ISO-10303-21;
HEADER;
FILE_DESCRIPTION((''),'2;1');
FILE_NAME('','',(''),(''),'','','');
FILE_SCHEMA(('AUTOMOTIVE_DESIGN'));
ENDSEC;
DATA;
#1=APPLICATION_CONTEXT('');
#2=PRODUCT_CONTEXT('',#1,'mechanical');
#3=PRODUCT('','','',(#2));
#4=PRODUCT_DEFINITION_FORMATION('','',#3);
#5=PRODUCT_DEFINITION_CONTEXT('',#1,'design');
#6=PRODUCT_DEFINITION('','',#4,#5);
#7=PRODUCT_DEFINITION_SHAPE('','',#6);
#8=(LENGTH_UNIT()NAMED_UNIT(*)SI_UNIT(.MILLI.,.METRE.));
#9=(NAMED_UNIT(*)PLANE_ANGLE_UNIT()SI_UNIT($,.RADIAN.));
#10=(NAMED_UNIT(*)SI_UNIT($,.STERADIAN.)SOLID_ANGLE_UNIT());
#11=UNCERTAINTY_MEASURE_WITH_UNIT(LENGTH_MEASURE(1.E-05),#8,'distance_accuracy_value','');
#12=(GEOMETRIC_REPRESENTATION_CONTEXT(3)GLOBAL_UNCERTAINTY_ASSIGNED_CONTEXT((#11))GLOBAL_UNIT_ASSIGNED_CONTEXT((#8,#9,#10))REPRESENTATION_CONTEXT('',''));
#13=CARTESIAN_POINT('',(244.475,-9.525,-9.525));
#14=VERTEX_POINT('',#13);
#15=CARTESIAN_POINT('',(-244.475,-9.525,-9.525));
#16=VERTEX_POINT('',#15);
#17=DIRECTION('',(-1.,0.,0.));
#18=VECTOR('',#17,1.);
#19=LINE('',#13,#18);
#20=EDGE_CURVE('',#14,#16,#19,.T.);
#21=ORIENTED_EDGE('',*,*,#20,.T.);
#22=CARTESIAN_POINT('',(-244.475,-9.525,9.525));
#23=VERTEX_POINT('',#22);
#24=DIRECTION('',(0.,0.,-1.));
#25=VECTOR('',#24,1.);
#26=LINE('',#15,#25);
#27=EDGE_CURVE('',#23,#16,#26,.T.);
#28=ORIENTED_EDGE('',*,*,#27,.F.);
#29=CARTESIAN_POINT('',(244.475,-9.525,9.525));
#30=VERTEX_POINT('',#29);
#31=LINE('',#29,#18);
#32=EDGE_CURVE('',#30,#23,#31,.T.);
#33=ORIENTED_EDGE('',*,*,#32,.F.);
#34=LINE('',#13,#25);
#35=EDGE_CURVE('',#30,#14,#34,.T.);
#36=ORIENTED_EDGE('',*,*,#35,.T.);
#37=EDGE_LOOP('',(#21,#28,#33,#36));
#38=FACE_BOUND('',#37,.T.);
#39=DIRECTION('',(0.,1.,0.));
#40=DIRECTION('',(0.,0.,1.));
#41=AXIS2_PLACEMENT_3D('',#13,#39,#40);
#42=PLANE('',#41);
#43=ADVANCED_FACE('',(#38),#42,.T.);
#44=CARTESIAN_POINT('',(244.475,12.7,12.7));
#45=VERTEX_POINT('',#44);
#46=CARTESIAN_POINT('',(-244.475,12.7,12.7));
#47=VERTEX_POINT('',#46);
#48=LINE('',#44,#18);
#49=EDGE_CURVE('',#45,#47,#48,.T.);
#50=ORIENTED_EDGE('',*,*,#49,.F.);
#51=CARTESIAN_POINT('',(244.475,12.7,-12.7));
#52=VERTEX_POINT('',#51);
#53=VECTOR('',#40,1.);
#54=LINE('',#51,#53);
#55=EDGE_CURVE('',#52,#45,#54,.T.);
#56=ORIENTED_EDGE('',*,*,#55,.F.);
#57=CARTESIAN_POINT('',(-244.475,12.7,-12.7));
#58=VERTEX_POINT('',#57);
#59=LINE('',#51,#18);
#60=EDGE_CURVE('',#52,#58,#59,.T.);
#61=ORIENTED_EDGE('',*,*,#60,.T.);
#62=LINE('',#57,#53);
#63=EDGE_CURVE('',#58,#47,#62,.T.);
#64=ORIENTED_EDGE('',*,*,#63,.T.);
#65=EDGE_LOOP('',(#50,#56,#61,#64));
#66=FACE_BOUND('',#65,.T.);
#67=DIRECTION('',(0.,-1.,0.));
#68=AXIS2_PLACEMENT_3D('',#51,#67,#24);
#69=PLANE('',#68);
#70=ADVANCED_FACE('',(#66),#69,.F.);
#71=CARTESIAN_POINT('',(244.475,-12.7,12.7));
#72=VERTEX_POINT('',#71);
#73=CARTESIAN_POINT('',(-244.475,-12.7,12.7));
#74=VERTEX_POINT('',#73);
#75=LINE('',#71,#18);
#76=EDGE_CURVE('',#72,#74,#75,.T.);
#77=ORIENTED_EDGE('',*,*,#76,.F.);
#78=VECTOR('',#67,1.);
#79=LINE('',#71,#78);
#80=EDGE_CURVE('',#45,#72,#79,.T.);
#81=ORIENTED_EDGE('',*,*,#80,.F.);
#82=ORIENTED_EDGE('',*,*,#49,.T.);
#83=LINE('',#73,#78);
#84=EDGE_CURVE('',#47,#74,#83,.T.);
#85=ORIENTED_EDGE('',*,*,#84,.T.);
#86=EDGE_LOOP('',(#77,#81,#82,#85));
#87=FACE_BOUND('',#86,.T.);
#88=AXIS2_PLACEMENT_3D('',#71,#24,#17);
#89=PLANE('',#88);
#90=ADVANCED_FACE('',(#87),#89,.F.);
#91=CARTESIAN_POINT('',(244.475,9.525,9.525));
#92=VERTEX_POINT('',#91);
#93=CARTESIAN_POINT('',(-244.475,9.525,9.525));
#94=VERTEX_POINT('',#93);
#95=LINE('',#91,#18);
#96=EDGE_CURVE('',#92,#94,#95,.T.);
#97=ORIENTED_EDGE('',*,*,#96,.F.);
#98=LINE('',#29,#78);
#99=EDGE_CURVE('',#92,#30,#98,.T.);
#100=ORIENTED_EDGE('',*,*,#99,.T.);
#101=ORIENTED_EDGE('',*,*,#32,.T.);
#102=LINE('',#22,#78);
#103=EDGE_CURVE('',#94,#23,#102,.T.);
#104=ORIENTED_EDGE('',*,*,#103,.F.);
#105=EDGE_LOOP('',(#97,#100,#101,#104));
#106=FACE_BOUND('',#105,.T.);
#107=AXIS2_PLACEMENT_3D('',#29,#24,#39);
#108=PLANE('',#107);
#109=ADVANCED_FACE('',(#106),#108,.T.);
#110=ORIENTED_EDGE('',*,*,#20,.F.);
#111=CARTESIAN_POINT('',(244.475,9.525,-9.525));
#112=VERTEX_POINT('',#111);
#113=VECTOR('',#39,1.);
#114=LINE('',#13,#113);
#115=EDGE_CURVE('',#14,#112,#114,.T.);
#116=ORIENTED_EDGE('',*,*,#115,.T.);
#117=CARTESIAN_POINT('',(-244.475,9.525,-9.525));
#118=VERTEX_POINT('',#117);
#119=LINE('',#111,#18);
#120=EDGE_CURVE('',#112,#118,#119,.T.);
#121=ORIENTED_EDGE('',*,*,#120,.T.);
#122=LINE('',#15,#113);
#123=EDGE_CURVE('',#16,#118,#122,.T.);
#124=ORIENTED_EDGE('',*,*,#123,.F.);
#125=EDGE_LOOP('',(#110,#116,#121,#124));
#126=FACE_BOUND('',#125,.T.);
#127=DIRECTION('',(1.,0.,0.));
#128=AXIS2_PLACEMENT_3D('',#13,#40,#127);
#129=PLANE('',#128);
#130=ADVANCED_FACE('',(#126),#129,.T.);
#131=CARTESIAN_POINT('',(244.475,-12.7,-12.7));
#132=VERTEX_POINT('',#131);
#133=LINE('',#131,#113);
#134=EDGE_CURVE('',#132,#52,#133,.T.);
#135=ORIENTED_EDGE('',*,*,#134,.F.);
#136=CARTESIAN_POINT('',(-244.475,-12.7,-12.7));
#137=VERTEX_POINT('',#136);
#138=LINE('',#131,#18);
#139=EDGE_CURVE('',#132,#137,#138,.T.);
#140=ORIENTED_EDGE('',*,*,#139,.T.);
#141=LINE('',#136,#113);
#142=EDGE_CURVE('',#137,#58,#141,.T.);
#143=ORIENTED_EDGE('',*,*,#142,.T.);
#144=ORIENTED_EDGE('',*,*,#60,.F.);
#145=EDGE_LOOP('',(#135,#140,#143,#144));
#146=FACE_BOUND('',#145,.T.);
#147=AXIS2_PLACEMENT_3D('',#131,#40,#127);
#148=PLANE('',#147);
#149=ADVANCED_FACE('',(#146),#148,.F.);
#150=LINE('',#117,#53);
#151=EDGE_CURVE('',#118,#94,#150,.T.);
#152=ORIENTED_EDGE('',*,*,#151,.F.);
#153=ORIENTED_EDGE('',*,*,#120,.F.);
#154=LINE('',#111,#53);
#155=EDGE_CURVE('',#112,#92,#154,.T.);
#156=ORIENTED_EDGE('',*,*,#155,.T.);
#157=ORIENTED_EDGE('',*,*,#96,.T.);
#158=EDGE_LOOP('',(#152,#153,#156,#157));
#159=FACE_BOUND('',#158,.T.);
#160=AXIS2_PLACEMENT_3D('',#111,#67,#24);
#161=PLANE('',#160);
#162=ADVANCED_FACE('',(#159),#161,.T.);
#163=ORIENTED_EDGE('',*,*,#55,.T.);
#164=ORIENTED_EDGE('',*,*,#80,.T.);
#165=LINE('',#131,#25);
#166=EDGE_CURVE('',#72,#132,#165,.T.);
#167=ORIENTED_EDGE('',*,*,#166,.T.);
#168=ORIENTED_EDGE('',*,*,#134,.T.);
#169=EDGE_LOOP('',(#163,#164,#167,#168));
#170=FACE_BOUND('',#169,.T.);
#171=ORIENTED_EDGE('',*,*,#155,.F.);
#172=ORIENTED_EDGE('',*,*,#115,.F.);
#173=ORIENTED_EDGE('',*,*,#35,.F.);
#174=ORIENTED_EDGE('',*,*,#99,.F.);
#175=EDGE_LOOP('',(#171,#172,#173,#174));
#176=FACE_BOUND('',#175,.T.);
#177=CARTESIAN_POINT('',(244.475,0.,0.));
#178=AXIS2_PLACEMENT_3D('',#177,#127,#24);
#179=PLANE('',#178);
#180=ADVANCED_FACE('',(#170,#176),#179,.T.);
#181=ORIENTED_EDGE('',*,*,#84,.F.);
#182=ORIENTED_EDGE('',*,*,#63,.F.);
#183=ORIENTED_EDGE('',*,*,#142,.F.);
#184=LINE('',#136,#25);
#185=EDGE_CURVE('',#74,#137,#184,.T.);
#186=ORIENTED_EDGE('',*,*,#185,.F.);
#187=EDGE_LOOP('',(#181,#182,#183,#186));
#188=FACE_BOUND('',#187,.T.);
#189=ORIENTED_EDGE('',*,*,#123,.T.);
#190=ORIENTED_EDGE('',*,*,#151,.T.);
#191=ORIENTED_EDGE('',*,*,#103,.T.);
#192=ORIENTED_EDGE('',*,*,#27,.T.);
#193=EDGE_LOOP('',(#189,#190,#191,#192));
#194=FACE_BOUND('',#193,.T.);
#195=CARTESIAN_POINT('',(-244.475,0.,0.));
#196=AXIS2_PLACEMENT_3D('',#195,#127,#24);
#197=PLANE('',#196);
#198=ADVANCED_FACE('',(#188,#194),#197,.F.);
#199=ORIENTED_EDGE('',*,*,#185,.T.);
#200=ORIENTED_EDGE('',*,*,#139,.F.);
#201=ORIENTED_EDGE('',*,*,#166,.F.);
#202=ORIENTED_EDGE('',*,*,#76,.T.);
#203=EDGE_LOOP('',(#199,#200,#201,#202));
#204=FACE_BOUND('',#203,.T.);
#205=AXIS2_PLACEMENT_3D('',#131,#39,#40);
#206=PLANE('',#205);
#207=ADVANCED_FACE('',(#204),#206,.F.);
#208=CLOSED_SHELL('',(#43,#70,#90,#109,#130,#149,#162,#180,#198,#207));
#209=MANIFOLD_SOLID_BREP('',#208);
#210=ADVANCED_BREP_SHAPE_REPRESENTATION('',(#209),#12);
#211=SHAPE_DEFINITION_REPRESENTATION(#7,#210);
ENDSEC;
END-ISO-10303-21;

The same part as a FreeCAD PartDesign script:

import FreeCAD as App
import Part
import Sketcher
from FreeCAD import Vector
Q = App.Units.Quantity


def add_polygon(sketch, points):
    """Adds a closed chain of lines whose ends are joined by coincident constraints."""
    first, n = sketch.GeometryCount, len(points)
    for a, b in zip(points, points[1:] + points[:1]):
        sketch.addGeometry(Part.LineSegment(App.Vector(*a, 0), App.Vector(*b, 0)), False)
    for i in range(n):
        sketch.addConstraint(Sketcher.Constraint("Coincident", first + i, 2, first + (i + 1) % n, 1))

doc = App.newDocument("Part")
params = doc.addObject("Spreadsheet::Sheet", "Params")
for row, (alias, value) in enumerate([
    ("sketch1_width", "1 in"),
    ("sketch1_width2", "0.75 in"),
    ("pad1_length", "19.25 in"),
], start=1):
    params.set(f"A{row}", alias)
    params.set(f"B{row}", "=" + value)
    params.setAlias(f"B{row}", alias)

body = doc.addObject("PartDesign::Body", "Body")

sketch1 = doc.addObject("Sketcher::SketchObject", "Sketch")
body.addObject(sketch1)
sketch1.AttachmentSupport = (doc.YZ_Plane, [""])
sketch1.MapMode = "FlatFace"
add_polygon(sketch1, [(13, 13), (-13, 13), (-13, -13), (13, -13)])
add_polygon(sketch1, [(-10, -10), (-10, 10), (10, 10), (10, -10)])
sketch1.addConstraint(Sketcher.Constraint("Horizontal", 0))
sketch1.addConstraint(Sketcher.Constraint("Vertical", 1))
sketch1.addConstraint(Sketcher.Constraint("Horizontal", 2))
sketch1.addConstraint(Sketcher.Constraint("Vertical", 3))
sketch1.addConstraint(Sketcher.Constraint("Vertical", 4))
sketch1.addConstraint(Sketcher.Constraint("Horizontal", 5))
sketch1.addConstraint(Sketcher.Constraint("Vertical", 6))
sketch1.addConstraint(Sketcher.Constraint("Horizontal", 7))
sketch1.addConstraint(Sketcher.Constraint("Symmetric", 0, 2, 2, 2, -1, 1))
sketch1.addConstraint(Sketcher.Constraint("Symmetric", 4, 2, 6, 2, -1, 1))
sketch1.addConstraint(Sketcher.Constraint("Equal", 2, 1))
sketch1.addConstraint(Sketcher.Constraint("Equal", 7, 4))
sketch1.addConstraint(Sketcher.Constraint("DistanceX", 0, 2, 0, 1, Q("1 in")))
sketch1.addConstraint(Sketcher.Constraint("DistanceX", 5, 1, 5, 2, Q("0.75 in")))
sketch1.setExpression("Constraints[20]", "Params.sketch1_width")
sketch1.setExpression("Constraints[21]", "Params.sketch1_width2")
pad1 = doc.addObject("PartDesign::Pad", "Pad")
body.addObject(pad1)
pad1.Profile = sketch1
pad1.setExpression("Length", "Params.pad1_length")
pad1.Midplane = True

doc.recompute()
